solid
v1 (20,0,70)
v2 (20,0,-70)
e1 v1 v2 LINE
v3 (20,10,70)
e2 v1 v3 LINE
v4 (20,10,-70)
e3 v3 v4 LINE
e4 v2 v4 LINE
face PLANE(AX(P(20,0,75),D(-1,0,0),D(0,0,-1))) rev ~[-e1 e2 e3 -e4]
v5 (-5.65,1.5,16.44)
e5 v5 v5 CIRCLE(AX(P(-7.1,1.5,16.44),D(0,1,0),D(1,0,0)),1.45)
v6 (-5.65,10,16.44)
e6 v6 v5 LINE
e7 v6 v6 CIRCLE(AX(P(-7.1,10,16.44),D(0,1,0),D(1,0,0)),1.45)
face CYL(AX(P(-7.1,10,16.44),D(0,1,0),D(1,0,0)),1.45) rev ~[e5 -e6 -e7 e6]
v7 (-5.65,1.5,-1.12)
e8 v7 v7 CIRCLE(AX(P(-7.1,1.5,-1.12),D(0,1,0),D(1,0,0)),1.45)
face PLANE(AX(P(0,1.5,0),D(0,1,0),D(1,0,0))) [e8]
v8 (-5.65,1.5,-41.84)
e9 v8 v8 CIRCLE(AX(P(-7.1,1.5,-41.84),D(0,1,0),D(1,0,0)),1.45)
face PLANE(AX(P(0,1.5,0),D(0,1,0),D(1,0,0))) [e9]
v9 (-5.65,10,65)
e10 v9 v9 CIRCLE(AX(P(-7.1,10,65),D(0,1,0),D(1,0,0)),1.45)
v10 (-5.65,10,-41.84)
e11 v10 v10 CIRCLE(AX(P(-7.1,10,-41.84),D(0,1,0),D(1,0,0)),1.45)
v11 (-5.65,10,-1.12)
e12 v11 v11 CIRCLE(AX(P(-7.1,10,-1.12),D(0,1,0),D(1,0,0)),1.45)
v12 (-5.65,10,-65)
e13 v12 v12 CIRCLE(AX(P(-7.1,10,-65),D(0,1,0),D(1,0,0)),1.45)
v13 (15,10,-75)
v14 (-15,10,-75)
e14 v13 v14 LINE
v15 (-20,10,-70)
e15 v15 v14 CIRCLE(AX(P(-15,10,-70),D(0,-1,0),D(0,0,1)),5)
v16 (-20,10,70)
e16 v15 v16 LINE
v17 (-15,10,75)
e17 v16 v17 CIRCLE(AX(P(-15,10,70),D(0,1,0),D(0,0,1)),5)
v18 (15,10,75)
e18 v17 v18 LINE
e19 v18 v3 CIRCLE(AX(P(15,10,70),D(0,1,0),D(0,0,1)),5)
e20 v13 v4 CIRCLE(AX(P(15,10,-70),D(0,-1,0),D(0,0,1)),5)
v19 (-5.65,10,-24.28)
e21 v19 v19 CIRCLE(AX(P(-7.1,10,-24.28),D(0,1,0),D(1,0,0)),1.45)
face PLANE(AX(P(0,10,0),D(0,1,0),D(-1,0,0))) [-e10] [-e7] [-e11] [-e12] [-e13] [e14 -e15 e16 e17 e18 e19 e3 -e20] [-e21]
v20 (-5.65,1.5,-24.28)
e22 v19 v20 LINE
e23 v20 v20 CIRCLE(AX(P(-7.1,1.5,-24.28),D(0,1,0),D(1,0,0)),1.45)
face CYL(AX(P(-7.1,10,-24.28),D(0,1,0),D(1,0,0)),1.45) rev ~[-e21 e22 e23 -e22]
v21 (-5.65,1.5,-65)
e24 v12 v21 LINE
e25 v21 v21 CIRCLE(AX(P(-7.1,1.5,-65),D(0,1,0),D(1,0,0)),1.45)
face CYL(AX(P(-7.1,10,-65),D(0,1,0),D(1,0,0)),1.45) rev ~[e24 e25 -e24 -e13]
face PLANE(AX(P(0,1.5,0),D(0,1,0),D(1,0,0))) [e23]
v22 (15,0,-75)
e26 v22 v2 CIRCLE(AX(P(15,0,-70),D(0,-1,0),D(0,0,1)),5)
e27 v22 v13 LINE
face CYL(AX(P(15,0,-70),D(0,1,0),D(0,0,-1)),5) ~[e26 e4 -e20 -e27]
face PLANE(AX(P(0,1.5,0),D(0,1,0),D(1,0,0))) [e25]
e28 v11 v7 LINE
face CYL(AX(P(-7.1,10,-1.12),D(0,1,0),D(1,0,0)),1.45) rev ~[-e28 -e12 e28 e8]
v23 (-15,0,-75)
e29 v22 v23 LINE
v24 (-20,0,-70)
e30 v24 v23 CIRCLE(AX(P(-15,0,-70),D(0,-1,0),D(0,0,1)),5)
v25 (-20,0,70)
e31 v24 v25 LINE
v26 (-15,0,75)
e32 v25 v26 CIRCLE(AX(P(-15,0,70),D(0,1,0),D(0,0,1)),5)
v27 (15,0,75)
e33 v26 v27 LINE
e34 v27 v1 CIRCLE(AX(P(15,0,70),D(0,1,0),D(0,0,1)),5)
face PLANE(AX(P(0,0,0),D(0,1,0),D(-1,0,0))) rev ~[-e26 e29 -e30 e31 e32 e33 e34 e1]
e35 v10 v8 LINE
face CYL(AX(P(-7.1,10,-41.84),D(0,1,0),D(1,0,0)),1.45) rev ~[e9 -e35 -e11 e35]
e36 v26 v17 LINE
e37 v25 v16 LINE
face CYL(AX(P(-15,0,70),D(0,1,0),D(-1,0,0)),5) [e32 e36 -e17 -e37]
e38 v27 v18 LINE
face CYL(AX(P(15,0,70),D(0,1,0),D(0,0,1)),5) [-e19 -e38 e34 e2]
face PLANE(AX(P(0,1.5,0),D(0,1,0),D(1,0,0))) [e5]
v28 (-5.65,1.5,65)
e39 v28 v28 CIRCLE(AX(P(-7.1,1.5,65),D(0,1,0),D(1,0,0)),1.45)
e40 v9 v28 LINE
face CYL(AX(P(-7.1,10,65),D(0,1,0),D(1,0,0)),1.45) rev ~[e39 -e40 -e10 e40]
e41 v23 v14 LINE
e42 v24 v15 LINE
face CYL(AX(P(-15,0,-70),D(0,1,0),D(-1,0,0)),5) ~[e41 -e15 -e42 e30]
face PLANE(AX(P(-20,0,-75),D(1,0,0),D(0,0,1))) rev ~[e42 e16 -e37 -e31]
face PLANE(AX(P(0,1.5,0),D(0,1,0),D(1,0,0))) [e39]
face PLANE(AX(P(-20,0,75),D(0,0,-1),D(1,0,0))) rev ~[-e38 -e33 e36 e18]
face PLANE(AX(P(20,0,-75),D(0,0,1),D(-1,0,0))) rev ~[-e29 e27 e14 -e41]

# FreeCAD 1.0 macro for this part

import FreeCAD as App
import Part
import Sketcher

V = App.Vector


def edges_at(feature, points):
    """Names of the edges that pass closest to the given points."""
    edges = feature.Shape.Edges
    near = lambda p: min(range(len(edges)), key=lambda i: edges[i].distToShape(Part.Vertex(*p))[0])
    return sorted({f"Edge{near(p) + 1}" for p in points})


def add_polygon(sketch, points):
    """Adds a closed chain of lines whose ends are joined by coincident constraints."""
    first, n = sketch.GeometryCount, len(points)
    for a, b in zip(points, points[1:] + points[:1]):
        sketch.addGeometry(Part.LineSegment(App.Vector(*a, 0), App.Vector(*b, 0)), False)
    for i in range(n):
        sketch.addConstraint(Sketcher.Constraint("Coincident", first + i, 2, first + (i + 1) % n, 1))

doc = App.newDocument("Part")
params = doc.addObject("Spreadsheet::Sheet", "Params")
for row, (alias, value) in enumerate([
    ("sketch1_width", "40 mm"),
    ("sketch1_height", "150 mm"),
    ("pad1_length", "10 mm"),
    ("sketch2_diameter", "2.9 mm"),
    ("pocket1_length", "8.5 mm"),
    ("fillet_radius", "5 mm"),
], start=1):
    params.set(f"A{row}", alias)
    params.set(f"B{row}", "=" + value)
    params.setAlias(f"B{row}", alias)

body = doc.addObject("PartDesign::Body", "Body")

sketch1 = doc.addObject("Sketcher::SketchObject", "Sketch")
body.addObject(sketch1)
sketch1.AttachmentSupport = (doc.XZ_Plane, [""])
sketch1.MapMode = "FlatFace"
add_polygon(sketch1, [(-20, -75), (-20, 75), (20, 75), (20, -75)])
sketch1.addConstraint(Sketcher.Constraint("Vertical", 0))
sketch1.addConstraint(Sketcher.Constraint("Horizontal", 1))
sketch1.addConstraint(Sketcher.Constraint("Vertical", 2))
sketch1.addConstraint(Sketcher.Constraint("Horizontal", 3))
sketch1.addConstraint(Sketcher.Constraint("Symmetric", 0, 2, 2, 2, -1, 1))
sketch1.addConstraint(Sketcher.Constraint("DistanceX", 1, 1, 1, 2, 40.0))
sketch1.addConstraint(Sketcher.Constraint("DistanceY", 0, 1, 0, 2, 150.0))
sketch1.setExpression("Constraints[9]", "Params.sketch1_width")
sketch1.setExpression("Constraints[10]", "Params.sketch1_height")
pad1 = doc.addObject("PartDesign::Pad", "Pad")
body.addObject(pad1)
pad1.Profile = sketch1
pad1.setExpression("Length", "Params.pad1_length")
pad1.Reversed = True

sketch2 = doc.addObject("Sketcher::SketchObject", "Sketch001")
body.addObject(sketch2)
sketch2.AttachmentSupport = (doc.XZ_Plane, [""])
sketch2.MapMode = "FlatFace"
sketch2.AttachmentOffset = App.Placement(V(0, 0, -10), App.Rotation())
sketch2.addGeometry(Part.Circle(V(-7.1, 65, 0), V(0, 0, 1), 1.45), False)
sketch2.addGeometry(Part.Circle(V(-7.1, 16.44, 0), V(0, 0, 1), 1.45), False)
sketch2.addGeometry(Part.Circle(V(-7.1, -1.12, 0), V(0, 0, 1), 1.45), False)
sketch2.addGeometry(Part.Circle(V(-7.1, -24.28, 0), V(0, 0, 1), 1.45), False)
sketch2.addGeometry(Part.Circle(V(-7.1, -41.84, 0), V(0, 0, 1), 1.45), False)
sketch2.addGeometry(Part.Circle(V(-7.1, -65, 0), V(0, 0, 1), 1.45), False)
sketch2.addConstraint(Sketcher.Constraint("Equal", 0, 1))
sketch2.addConstraint(Sketcher.Constraint("Equal", 1, 2))
sketch2.addConstraint(Sketcher.Constraint("Equal", 2, 3))
sketch2.addConstraint(Sketcher.Constraint("Equal", 3, 4))
sketch2.addConstraint(Sketcher.Constraint("Equal", 4, 5))
sketch2.addConstraint(Sketcher.Constraint("Symmetric", 0, 3, 5, 3, -1))
sketch2.addConstraint(Sketcher.Constraint("Vertical", 0, 3, 1, 3))
sketch2.addConstraint(Sketcher.Constraint("Vertical", 1, 3, 2, 3))
sketch2.addConstraint(Sketcher.Constraint("Vertical", 2, 3, 3, 3))
sketch2.addConstraint(Sketcher.Constraint("Vertical", 3, 3, 4, 3))
sketch2.addConstraint(Sketcher.Constraint("Diameter", 0, 2.9))
sketch2.addConstraint(Sketcher.Constraint("DistanceY", -1, 1, 0, 3, 65.0))
sketch2.addConstraint(Sketcher.Constraint("DistanceX", 0, 3, -1, 1, 7.1))
sketch2.addConstraint(Sketcher.Constraint("DistanceY", -1, 1, 1, 3, 16.44))
sketch2.addConstraint(Sketcher.Constraint("DistanceY", 2, 3, -1, 1, 1.12))
sketch2.addConstraint(Sketcher.Constraint("DistanceY", 3, 3, -1, 1, 24.28))
sketch2.addConstraint(Sketcher.Constraint("DistanceY", 4, 3, -1, 1, 41.84))
sketch2.setExpression("Constraints[10]", "Params.sketch2_diameter")
pocket1 = doc.addObject("PartDesign::Pocket", "Pocket")
body.addObject(pocket1)
pocket1.Profile = sketch2
pocket1.setExpression("Length", "Params.pocket1_length")
pocket1.Reversed = True
doc.recompute()

fillet = doc.addObject("PartDesign::Fillet", "Fillet")
body.addObject(fillet)
fillet.Base = (pocket1, edges_at(pocket1, [
    (20, 5, 75),
    (-20, 5, 75),
    (20, 5, -75),
    (-20, 5, -75),
]))
fillet.setExpression("Radius", "Params.fillet_radius")

doc.recompute()
